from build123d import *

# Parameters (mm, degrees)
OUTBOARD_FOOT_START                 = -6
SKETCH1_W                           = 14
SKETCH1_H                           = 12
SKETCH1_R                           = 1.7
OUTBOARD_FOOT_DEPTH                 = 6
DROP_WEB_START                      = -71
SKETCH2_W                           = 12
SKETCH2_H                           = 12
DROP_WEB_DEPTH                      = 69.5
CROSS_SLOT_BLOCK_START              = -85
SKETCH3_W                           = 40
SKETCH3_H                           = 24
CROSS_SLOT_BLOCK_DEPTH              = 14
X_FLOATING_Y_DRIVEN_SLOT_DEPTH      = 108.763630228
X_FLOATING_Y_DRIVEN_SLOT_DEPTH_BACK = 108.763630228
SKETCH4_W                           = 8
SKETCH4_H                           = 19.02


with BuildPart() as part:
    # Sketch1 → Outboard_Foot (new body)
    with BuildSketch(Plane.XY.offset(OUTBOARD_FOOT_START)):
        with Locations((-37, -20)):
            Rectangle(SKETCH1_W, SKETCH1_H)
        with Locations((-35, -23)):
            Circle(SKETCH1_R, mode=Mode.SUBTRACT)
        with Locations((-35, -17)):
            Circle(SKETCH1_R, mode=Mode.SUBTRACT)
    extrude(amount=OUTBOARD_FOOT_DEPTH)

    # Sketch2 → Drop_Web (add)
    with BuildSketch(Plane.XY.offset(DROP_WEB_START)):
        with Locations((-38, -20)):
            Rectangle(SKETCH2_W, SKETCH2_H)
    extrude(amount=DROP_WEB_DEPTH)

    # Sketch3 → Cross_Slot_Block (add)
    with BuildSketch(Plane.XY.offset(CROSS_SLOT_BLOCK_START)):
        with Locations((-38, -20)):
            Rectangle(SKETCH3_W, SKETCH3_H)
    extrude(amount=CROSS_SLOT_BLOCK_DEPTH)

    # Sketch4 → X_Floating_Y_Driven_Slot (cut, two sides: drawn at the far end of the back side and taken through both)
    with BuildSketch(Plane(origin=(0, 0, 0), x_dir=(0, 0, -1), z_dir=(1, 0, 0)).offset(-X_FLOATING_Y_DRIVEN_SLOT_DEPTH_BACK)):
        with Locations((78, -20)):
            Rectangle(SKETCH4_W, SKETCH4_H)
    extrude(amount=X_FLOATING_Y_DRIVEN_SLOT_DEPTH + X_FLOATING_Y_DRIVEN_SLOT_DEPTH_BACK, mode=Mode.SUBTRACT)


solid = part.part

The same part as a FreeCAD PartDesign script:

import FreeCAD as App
import Part
import Sketcher
from FreeCAD import Vector


def add_polygon(sketch, points):
    """Adds a closed chain of lines whose ends are joined by coincident constraints."""
    first, n = sketch.GeometryCount, len(points)
    for a, b in zip(points, points[1:] + points[:1]):
        sketch.addGeometry(Part.LineSegment(App.Vector(*a, 0), App.Vector(*b, 0)), False)
    for i in range(n):
        sketch.addConstraint(Sketcher.Constraint("Coincident", first + i, 2, first + (i + 1) % n, 1))

doc = App.newDocument("Part")
params = doc.addObject("Spreadsheet::Sheet", "Params")
for row, (alias, value) in enumerate([
    ("sketch1_diameter", "3.4 mm"),
    ("sketch1_width", "14 mm"),
    ("sketch1_height", "12 mm"),
    ("pad1_length", "6 mm"),
    ("sketch2_width", "12 mm"),
    ("pad2_length", "69.5 mm"),
    ("sketch3_width", "40 mm"),
    ("sketch3_height", "24 mm"),
    ("pad3_length", "14 mm"),
    ("sketch4_height", "8 mm"),
    ("sketch4_width", "19.02 mm"),
], start=1):
    params.set(f"A{row}", alias)
    params.set(f"B{row}", "=" + value)
    params.setAlias(f"B{row}", alias)

body = doc.addObject("PartDesign::Body", "Body")

# Sketch on XY plane
sketch1 = doc.addObject("Sketcher::SketchObject", "Sketch")
body.addObject(sketch1)
sketch1.AttachmentSupport = (doc.XY_Plane, [""])
sketch1.MapMode = "FlatFace"
sketch1.AttachmentOffset = App.Placement(Vector(0, 0, -6), App.Rotation())
add_polygon(sketch1, [(-44, -14), (-44, -26), (-30, -26), (-30, -14)])  # lines 0-3
sketch1.addGeometry(Part.Circle(Vector(-35, -23, 0), Vector(0, 0, 1), 1.7), False)  # 4
sketch1.addGeometry(Part.Circle(Vector(-35, -17, 0), Vector(0, 0, 1), 1.7), False)  # 5
sketch1.addConstraint(Sketcher.Constraint("Vertical", 0))
sketch1.addConstraint(Sketcher.Constraint("Horizontal", 1))
sketch1.addConstraint(Sketcher.Constraint("Vertical", 2))
sketch1.addConstraint(Sketcher.Constraint("Horizontal", 3))
sketch1.addConstraint(Sketcher.Constraint("Equal", 4, 5))
sketch1.addConstraint(Sketcher.Constraint("Vertical", 4, 3, 5, 3))
sketch1.addConstraint(Sketcher.Constraint("Diameter", 4, 3.4))
sketch1.addConstraint(Sketcher.Constraint("DistanceX", 1, 1, 1, 2, 14.0))
sketch1.addConstraint(Sketcher.Constraint("DistanceY", 0, 2, 0, 1, 12.0))
sketch1.addConstraint(Sketcher.Constraint("DistanceX", 4, 3, -1, 1, 35.0))
sketch1.addConstraint(Sketcher.Constraint("DistanceY", 4, 3, -1, 1, 23.0))
sketch1.addConstraint(Sketcher.Constraint("DistanceY", 5, 3, -1, 1, 17.0))
sketch1.addConstraint(Sketcher.Constraint("DistanceX", 0, 2, -1, 1, 44.0))
sketch1.addConstraint(Sketcher.Constraint("DistanceY", 0, 2, -1, 1, 26.0))
sketch1.setExpression("Constraints[10]", "Params.sketch1_diameter")
sketch1.setExpression("Constraints[11]", "Params.sketch1_width")
sketch1.setExpression("Constraints[12]", "Params.sketch1_height")
pad1 = doc.addObject("PartDesign::Pad", "Pad")
body.addObject(pad1)
pad1.Profile = sketch1
pad1.setExpression("Length", "Params.pad1_length")

# Sketch on XY plane
sketch2 = doc.addObject("Sketcher::SketchObject", "Sketch001")
body.addObject(sketch2)
sketch2.AttachmentSupport = (doc.XY_Plane, [""])
sketch2.MapMode = "FlatFace"
sketch2.AttachmentOffset = App.Placement(Vector(0, 0, -71), App.Rotation())
add_polygon(sketch2, [(-44, -14), (-44, -26), (-32, -26), (-32, -14)])  # lines 0-3
sketch2.addConstraint(Sketcher.Constraint("Vertical", 0))
sketch2.addConstraint(Sketcher.Constraint("Horizontal", 1))
sketch2.addConstraint(Sketcher.Constraint("Vertical", 2))
sketch2.addConstraint(Sketcher.Constraint("Horizontal", 3))
sketch2.addConstraint(Sketcher.Constraint("Equal", 3, 0))
sketch2.addConstraint(Sketcher.Constraint("DistanceX", 1, 1, 1, 2, 12.0))
sketch2.addConstraint(Sketcher.Constraint("DistanceX", 0, 2, -1, 1, 44.0))
sketch2.addConstraint(Sketcher.Constraint("DistanceY", 0, 2, -1, 1, 26.0))
sketch2.setExpression("Constraints[9]", "Params.sketch2_width")
pad2 = doc.addObject("PartDesign::Pad", "Pad001")
body.addObject(pad2)
pad2.Profile = sketch2
pad2.setExpression("Length", "Params.pad2_length")

# Sketch on XY plane
sketch3 = doc.addObject("Sketcher::SketchObject", "Sketch002")
body.addObject(sketch3)
sketch3.AttachmentSupport = (doc.XY_Plane, [""])
sketch3.MapMode = "FlatFace"
sketch3.AttachmentOffset = App.Placement(Vector(0, 0, -85), App.Rotation())
add_polygon(sketch3, [(-58, -8), (-58, -32), (-18, -32), (-18, -8)])  # lines 0-3
sketch3.addConstraint(Sketcher.Constraint("Vertical", 0))
sketch3.addConstraint(Sketcher.Constraint("Horizontal", 1))
sketch3.addConstraint(Sketcher.Constraint("Vertical", 2))
sketch3.addConstraint(Sketcher.Constraint("Horizontal", 3))
sketch3.addConstraint(Sketcher.Constraint("DistanceX", 1, 1, 1, 2, 40.0))
sketch3.addConstraint(Sketcher.Constraint("DistanceY", 0, 2, 0, 1, 24.0))
sketch3.addConstraint(Sketcher.Constraint("DistanceX", 0, 2, -1, 1, 58.0))
sketch3.addConstraint(Sketcher.Constraint("DistanceY", 0, 2, -1, 1, 32.0))
sketch3.setExpression("Constraints[8]", "Params.sketch3_width")
sketch3.setExpression("Constraints[9]", "Params.sketch3_height")
pad3 = doc.addObject("PartDesign::Pad", "Pad002")
body.addObject(pad3)
pad3.Profile = sketch3
pad3.setExpression("Length", "Params.pad3_length")

# Sketch on YZ plane
sketch4 = doc.addObject("Sketcher::SketchObject", "Sketch003")
body.addObject(sketch4)
sketch4.AttachmentSupport = (doc.YZ_Plane, [""])
sketch4.MapMode = "FlatFace"
add_polygon(sketch4, [(-10, -74), (-30, -74), (-30, -82), (-10, -82)])  # lines 0-3
sketch4.addConstraint(Sketcher.Constraint("Horizontal", 0))
sketch4.addConstraint(Sketcher.Constraint("Vertical", 1))
sketch4.addConstraint(Sketcher.Constraint("Horizontal", 2))
sketch4.addConstraint(Sketcher.Constraint("Vertical", 3))
sketch4.addConstraint(Sketcher.Constraint("DistanceY", 1, 2, 1, 1, 8.0))
sketch4.addConstraint(Sketcher.Constraint("DistanceY", 0, 2, -1, 1, 74.0))
sketch4.addConstraint(Sketcher.Constraint("DistanceX", 0, 2, 0, 1, 19.02))
sketch4.addConstraint(Sketcher.Constraint("DistanceX", 0, 2, -1, 1, 29.51))
sketch4.setExpression("Constraints[8]", "Params.sketch4_height")
sketch4.setExpression("Constraints[10]", "Params.sketch4_width")
pocket1 = doc.addObject("PartDesign::Pocket", "Pocket")
body.addObject(pocket1)
pocket1.Profile = sketch4
pocket1.Type = "ThroughAll"
pocket1.Midplane = True

doc.recompute()
